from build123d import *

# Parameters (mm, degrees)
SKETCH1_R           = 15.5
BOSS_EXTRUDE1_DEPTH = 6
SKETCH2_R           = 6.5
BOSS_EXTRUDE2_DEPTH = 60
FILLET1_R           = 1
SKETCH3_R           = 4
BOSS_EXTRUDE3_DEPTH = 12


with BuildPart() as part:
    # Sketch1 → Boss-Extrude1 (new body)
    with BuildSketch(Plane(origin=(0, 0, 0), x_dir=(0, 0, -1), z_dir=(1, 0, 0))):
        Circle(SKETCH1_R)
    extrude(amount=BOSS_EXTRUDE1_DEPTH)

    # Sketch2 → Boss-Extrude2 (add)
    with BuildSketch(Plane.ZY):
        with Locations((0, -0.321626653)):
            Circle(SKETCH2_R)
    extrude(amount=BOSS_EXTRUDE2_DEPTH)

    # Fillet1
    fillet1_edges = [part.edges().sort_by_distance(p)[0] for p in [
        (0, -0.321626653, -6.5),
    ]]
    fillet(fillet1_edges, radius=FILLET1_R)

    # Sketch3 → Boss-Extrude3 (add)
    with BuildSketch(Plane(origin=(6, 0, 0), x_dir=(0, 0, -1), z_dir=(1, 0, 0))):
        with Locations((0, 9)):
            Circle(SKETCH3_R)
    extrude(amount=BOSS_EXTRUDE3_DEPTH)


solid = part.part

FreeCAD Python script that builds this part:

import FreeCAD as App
import Part
import Sketcher

V = App.Vector


def edges_at(feature, points):
    """Names of the edges that pass closest to the given points."""
    edges = feature.Shape.Edges
    near = lambda p: min(range(len(edges)), key=lambda i: edges[i].distToShape(Part.Vertex(*p))[0])
    return sorted({f"Edge{near(p) + 1}" for p in points})

doc = App.newDocument("Part")
body = doc.addObject("PartDesign::Body", "Body")

# Sketch on YZ plane
sketch1 = body.newObject("Sketcher::SketchObject", "Sketch")
sketch1.AttachmentSupport = (doc.getObject("YZ_Plane"), [""])
sketch1.MapMode = "FlatFace"
sketch1.addGeometry(Part.Circle(V(0, 0, 0), V(0, 0, 1), 15.5), False)
sketch1.addConstraint(Sketcher.Constraint("Coincident", 0, 3, -1, 1))
sketch1.addConstraint(Sketcher.Constraint("Diameter", 0, 31.0))
pad1 = body.newObject("PartDesign::Pad", "Pad")
pad1.Profile = sketch1
pad1.Length = 6

# Sketch on YZ plane
sketch2 = body.newObject("Sketcher::SketchObject", "Sketch001")
sketch2.AttachmentSupport = (doc.getObject("YZ_Plane"), [""])
sketch2.MapMode = "FlatFace"
sketch2.addGeometry(Part.Circle(V(-0.321627, 0, 0), V(0, 0, 1), 6.5), False)
sketch2.addConstraint(Sketcher.Constraint("PointOnObject", 0, 3, -1))
sketch2.addConstraint(Sketcher.Constraint("Diameter", 0, 13.0))
sketch2.addConstraint(Sketcher.Constraint("DistanceX", 0, 3, -1, 1, 0.321627))
pad2 = body.newObject("PartDesign::Pad", "Pad001")
pad2.Profile = sketch2
pad2.Length = 60
pad2.Reversed = True
doc.recompute()

fillet = body.newObject("PartDesign::Fillet", "Fillet")
fillet.Base = (pad2, edges_at(pad2, [(0, -0.322, -6.5)]))
fillet.Radius = 1

# Sketch on YZ plane
sketch3 = body.newObject("Sketcher::SketchObject", "Sketch002")
sketch3.AttachmentSupport = (doc.getObject("YZ_Plane"), [""])
sketch3.MapMode = "FlatFace"
sketch3.AttachmentOffset = App.Placement(V(0, 0, 6), App.Rotation())
sketch3.addGeometry(Part.Circle(V(9, 0, 0), V(0, 0, 1), 4), False)
sketch3.addConstraint(Sketcher.Constraint("PointOnObject", 0, 3, -1))
sketch3.addConstraint(Sketcher.Constraint("Diameter", 0, 8.0))
sketch3.addConstraint(Sketcher.Constraint("DistanceX", -1, 1, 0, 3, 9.0))
pad3 = body.newObject("PartDesign::Pad", "Pad002")
pad3.Profile = sketch3
pad3.Length = 12

doc.recompute()
